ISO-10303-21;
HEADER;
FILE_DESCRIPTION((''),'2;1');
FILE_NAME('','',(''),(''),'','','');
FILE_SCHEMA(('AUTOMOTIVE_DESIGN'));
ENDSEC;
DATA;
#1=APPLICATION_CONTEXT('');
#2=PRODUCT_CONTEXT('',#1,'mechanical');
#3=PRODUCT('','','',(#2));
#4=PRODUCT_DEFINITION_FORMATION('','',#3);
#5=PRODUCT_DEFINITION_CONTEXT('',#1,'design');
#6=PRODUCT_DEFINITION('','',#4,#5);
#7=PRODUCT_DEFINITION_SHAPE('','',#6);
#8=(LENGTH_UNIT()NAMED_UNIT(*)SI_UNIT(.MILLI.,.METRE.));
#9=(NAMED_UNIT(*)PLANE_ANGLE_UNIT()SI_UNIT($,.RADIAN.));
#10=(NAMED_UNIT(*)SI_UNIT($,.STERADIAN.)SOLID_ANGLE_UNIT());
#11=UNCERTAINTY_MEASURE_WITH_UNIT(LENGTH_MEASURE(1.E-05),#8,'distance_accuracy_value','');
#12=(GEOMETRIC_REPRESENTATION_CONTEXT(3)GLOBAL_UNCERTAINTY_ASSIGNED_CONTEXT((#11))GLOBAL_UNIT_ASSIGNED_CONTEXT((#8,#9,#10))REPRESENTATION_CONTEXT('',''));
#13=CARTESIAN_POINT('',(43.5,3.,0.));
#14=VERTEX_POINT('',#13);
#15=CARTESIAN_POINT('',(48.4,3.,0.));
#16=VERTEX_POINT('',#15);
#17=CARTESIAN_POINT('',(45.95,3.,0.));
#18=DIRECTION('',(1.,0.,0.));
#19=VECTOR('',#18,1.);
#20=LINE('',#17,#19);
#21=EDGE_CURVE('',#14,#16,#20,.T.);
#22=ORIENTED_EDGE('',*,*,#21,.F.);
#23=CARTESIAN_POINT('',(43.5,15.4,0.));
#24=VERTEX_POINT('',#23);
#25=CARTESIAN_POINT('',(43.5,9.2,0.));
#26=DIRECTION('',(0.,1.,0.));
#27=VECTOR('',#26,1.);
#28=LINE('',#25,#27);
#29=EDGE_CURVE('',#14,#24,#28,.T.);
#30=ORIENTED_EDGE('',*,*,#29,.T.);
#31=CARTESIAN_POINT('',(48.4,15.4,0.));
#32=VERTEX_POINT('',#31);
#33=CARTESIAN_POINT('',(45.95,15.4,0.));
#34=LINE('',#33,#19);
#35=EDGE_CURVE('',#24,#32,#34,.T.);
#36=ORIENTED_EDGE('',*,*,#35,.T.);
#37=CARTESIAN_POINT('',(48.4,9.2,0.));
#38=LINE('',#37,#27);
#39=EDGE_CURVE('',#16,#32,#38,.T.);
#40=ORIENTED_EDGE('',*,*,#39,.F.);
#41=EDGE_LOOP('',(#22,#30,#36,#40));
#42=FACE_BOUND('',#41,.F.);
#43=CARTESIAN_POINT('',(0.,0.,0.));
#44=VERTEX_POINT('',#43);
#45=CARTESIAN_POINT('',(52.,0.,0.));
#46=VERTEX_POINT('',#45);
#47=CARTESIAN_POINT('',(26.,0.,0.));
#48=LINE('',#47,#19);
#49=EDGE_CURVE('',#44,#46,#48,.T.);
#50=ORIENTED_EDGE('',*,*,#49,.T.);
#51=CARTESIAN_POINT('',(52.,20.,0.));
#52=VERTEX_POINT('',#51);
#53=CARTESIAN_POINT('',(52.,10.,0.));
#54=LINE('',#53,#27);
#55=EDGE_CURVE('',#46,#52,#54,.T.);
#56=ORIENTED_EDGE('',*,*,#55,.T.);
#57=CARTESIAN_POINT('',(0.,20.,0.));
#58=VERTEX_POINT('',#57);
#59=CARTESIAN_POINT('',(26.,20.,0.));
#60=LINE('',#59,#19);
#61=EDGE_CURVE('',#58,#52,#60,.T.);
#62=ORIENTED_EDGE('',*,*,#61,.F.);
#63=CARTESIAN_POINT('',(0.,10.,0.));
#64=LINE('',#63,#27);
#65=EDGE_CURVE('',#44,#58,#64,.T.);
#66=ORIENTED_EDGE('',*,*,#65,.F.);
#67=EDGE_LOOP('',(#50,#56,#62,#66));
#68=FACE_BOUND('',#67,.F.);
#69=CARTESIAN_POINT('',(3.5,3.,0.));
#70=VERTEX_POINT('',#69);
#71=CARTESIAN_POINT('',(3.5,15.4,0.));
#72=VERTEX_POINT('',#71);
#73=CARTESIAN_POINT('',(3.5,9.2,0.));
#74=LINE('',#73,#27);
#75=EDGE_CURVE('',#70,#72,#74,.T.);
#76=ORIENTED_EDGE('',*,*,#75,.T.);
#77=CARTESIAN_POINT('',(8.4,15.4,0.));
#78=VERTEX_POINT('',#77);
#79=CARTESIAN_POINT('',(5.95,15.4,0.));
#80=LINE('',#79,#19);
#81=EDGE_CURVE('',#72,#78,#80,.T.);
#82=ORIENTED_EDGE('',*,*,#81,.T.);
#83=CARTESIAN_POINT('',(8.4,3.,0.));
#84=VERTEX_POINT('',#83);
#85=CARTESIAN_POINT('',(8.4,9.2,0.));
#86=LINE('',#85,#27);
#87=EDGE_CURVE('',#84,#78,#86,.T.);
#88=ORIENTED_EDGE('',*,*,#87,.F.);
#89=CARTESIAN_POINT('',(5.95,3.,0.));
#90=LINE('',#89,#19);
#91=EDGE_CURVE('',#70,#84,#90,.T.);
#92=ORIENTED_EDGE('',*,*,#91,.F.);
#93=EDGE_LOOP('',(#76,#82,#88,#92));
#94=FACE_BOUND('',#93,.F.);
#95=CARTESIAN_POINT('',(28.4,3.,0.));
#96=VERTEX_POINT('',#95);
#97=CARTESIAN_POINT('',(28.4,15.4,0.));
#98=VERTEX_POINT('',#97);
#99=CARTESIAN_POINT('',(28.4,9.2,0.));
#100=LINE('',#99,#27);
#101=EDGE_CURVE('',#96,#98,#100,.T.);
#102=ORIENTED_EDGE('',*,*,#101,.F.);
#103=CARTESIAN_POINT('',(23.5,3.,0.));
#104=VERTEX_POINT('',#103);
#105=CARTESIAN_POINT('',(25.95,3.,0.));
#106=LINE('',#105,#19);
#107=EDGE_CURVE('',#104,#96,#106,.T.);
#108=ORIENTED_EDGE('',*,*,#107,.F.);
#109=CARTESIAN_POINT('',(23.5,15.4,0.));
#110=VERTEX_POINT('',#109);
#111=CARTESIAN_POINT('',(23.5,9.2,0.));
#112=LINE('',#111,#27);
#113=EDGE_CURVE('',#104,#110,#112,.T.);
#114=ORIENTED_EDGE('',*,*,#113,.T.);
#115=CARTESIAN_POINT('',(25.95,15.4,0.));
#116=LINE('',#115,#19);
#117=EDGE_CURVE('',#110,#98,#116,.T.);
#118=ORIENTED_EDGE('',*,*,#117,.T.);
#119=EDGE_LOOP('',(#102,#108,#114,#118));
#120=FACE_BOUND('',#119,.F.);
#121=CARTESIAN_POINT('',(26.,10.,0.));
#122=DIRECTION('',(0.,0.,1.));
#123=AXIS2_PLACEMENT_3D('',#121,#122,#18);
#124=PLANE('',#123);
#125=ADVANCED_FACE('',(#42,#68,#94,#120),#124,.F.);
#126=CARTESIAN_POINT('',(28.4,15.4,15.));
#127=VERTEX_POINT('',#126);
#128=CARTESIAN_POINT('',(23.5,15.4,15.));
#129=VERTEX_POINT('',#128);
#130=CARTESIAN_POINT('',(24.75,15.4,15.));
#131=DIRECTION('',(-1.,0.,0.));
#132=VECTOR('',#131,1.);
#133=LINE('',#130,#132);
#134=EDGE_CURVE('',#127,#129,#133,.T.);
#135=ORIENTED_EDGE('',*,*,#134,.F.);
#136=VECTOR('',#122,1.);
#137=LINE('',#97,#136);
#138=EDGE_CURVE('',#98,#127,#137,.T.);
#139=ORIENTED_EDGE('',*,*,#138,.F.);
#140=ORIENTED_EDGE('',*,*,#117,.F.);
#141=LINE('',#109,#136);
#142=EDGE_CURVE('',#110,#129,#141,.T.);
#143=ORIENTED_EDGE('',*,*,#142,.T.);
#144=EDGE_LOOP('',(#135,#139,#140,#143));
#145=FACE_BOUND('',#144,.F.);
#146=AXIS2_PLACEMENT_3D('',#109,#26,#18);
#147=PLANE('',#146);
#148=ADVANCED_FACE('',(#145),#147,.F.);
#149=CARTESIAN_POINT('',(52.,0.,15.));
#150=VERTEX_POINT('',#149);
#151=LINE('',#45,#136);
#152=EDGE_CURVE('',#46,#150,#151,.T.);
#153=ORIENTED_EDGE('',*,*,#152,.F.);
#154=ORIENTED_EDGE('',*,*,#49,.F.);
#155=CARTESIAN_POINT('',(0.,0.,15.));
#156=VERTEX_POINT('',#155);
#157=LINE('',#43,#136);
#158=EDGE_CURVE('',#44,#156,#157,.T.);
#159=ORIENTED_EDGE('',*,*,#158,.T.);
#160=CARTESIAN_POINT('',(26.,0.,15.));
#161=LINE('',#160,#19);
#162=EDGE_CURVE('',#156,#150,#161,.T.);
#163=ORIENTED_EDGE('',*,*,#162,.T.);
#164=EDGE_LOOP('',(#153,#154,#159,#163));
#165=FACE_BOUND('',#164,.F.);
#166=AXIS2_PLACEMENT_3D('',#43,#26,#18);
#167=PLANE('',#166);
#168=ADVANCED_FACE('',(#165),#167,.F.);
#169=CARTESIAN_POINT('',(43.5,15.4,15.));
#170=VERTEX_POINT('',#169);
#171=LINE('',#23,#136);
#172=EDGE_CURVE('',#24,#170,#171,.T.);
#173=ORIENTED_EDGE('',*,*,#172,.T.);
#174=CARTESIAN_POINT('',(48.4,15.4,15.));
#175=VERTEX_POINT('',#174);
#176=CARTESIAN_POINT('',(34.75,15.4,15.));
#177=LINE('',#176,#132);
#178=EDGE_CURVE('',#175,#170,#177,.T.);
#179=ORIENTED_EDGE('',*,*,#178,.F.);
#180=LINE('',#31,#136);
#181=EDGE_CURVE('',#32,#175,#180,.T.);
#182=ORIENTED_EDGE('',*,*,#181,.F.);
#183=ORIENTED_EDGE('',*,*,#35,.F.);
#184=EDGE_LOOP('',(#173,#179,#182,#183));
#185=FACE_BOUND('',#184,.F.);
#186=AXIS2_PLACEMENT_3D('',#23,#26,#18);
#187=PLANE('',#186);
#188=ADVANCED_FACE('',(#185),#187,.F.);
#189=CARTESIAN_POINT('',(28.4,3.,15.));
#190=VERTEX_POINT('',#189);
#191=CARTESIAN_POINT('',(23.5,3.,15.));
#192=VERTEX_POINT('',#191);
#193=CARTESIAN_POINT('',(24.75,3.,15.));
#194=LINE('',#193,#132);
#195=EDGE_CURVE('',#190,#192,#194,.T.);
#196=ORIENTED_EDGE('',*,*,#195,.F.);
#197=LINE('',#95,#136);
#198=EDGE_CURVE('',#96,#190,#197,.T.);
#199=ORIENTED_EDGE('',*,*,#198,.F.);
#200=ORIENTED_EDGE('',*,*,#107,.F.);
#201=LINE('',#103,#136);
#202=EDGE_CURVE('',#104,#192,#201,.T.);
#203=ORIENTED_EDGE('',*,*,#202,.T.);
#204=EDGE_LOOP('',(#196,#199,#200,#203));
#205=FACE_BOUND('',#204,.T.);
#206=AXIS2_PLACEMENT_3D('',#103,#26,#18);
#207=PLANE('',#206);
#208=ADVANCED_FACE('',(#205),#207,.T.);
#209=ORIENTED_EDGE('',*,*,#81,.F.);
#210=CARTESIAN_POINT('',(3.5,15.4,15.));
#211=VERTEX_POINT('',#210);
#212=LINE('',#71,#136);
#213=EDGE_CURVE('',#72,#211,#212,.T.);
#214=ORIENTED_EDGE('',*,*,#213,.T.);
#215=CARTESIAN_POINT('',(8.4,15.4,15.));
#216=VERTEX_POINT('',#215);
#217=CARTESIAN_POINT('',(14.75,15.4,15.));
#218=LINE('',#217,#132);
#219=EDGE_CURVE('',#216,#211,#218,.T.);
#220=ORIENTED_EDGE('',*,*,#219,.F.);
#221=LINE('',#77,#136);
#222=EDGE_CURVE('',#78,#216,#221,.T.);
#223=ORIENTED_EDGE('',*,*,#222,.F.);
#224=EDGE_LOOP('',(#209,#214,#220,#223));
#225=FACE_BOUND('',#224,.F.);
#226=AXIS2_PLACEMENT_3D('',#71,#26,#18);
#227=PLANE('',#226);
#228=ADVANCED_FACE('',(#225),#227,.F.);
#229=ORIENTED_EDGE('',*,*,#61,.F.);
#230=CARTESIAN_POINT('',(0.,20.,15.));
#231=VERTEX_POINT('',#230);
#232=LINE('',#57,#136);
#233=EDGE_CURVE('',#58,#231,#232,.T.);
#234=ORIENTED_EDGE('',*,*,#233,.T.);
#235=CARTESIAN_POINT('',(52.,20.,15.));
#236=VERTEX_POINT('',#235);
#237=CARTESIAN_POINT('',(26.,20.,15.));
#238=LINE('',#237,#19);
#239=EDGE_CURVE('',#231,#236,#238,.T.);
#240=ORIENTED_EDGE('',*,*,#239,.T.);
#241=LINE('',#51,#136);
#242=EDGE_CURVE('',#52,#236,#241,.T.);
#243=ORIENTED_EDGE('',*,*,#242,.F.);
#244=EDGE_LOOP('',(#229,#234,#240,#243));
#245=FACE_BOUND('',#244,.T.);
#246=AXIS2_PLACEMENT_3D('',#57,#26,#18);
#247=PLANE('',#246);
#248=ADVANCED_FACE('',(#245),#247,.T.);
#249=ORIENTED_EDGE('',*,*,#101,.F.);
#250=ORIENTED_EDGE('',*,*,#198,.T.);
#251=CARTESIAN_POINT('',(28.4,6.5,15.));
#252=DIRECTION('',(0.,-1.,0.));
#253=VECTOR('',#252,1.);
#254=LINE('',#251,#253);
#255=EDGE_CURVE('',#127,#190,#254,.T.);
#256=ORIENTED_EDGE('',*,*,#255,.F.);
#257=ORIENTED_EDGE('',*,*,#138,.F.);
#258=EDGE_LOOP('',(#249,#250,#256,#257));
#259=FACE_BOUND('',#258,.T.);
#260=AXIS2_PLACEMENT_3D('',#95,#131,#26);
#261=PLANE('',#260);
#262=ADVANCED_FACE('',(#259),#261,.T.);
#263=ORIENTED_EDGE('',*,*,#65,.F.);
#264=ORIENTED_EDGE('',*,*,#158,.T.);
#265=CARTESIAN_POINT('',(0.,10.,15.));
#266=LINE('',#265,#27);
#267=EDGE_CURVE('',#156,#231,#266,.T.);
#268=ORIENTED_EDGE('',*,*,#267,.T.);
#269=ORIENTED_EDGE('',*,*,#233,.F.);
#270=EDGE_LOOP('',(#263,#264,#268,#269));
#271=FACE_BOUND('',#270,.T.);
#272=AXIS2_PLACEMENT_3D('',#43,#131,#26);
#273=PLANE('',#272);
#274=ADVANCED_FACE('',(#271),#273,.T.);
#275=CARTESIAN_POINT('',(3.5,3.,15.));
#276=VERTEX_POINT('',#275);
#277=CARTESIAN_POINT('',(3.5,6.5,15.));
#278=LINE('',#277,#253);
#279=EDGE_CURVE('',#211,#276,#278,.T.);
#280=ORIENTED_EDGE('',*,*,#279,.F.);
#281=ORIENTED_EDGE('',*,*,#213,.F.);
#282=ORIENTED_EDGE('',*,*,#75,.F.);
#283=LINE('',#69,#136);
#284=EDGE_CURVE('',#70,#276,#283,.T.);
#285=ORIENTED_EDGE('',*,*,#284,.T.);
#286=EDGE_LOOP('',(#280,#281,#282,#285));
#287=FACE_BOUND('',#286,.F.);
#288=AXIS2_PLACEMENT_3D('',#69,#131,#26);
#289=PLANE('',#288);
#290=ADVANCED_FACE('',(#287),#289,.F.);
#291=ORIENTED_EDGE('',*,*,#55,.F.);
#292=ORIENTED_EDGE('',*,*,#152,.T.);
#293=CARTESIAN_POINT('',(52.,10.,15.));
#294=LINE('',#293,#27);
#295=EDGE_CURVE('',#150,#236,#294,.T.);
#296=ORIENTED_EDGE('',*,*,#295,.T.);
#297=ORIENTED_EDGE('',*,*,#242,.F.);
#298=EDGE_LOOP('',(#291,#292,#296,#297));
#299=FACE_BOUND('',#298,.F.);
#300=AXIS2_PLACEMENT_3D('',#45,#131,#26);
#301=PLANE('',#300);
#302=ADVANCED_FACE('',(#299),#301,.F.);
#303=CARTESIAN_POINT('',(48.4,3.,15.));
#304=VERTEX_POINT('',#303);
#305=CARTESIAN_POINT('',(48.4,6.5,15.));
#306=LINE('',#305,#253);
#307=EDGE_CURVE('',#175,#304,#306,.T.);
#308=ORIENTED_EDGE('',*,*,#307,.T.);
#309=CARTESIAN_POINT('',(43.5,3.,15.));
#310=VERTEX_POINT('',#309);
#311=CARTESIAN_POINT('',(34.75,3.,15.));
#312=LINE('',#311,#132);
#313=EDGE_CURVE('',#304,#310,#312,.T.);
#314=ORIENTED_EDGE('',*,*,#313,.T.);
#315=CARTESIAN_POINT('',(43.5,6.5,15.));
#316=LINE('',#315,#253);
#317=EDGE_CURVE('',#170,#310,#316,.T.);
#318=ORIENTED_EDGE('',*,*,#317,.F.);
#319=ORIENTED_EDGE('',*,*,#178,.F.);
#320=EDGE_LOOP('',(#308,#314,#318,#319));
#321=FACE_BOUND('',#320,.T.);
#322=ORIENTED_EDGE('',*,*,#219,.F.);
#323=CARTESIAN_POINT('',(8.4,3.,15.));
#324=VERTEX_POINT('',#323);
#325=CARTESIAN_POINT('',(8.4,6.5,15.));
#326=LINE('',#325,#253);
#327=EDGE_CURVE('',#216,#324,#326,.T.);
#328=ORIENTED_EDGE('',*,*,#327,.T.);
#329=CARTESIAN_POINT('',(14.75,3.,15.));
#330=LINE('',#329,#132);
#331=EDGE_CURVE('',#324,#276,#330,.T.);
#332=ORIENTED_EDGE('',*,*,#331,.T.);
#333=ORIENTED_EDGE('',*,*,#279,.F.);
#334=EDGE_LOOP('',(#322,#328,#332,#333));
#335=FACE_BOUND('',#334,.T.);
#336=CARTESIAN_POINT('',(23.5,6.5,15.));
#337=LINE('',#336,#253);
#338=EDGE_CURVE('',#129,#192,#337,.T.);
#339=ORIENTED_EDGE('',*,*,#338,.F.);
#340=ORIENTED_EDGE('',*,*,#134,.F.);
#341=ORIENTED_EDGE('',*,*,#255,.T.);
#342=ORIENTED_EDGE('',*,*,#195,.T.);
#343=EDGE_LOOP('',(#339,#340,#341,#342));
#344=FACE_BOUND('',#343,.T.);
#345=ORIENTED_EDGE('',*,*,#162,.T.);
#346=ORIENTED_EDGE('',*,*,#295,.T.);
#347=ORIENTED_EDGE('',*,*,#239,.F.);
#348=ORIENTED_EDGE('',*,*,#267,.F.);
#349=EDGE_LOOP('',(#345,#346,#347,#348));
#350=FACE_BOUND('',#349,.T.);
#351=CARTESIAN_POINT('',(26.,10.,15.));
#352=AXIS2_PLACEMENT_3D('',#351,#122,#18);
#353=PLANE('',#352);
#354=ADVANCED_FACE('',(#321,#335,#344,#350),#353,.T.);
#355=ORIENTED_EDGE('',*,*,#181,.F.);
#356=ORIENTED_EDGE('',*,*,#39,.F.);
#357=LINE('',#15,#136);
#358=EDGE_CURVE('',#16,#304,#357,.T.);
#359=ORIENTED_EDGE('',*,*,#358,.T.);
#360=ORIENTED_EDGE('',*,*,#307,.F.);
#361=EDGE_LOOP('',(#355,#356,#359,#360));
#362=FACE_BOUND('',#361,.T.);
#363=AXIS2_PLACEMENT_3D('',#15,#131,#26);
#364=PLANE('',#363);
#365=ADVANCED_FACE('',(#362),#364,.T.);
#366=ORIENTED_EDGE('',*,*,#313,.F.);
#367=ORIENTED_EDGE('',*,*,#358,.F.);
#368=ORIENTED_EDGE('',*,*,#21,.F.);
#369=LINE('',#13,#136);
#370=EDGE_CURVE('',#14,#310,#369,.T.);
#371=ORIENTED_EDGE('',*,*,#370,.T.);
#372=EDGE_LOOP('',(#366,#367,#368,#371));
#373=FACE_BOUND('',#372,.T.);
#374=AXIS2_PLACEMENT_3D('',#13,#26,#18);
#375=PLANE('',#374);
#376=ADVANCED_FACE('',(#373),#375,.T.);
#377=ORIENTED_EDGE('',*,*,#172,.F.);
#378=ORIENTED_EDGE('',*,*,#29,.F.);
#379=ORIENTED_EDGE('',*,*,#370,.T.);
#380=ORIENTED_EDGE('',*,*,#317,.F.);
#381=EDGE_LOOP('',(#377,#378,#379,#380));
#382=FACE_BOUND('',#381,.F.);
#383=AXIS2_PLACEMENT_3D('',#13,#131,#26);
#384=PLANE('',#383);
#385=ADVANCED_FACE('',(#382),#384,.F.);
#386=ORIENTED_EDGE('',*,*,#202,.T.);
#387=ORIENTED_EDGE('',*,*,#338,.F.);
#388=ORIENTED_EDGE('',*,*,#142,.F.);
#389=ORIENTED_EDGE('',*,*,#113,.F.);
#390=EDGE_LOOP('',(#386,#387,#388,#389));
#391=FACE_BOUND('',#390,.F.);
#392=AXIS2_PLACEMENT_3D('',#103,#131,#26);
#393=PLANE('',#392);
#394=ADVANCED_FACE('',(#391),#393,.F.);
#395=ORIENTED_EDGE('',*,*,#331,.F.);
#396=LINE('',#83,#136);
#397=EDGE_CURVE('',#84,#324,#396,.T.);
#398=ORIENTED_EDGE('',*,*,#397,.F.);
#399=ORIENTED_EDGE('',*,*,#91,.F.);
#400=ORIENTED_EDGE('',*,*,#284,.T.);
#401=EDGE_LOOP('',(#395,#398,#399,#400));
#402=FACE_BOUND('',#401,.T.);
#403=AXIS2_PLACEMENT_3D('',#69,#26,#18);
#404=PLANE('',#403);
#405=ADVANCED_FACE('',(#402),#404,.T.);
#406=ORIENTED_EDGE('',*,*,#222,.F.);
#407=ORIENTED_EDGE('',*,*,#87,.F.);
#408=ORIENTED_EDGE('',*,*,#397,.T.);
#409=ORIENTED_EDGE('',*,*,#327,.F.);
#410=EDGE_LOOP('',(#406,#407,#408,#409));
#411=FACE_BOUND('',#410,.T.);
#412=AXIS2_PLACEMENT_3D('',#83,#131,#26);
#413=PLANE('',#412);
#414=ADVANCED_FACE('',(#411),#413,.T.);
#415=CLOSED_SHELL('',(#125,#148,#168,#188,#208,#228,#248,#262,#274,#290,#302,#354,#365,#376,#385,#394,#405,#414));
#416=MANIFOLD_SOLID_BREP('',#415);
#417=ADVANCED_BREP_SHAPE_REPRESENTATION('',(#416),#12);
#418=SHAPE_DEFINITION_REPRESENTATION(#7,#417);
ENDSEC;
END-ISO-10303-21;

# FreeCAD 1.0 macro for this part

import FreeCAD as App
import Part
import Sketcher
Q = App.Units.Quantity

doc = App.newDocument("Part")
params = doc.addObject("Spreadsheet::Sheet", "Params")
for row, (alias, value) in enumerate([
    ("sketch1_width", "4.9 mm"),
    ("sketch1_height", "12.4 mm"),
    ("pad1_length", "16 mm"),
    ("sketch2_width", "4.9 mm"),
    ("sketch2_height", "12.4 mm"),
    ("pad2_length", "16 mm"),
    ("sketch3_width", "4.9 mm"),
    ("sketch3_height", "12.4 mm"),
    ("pad3_length", "16 mm"),
    ("sketch4_width", "52 mm"),
    ("sketch4_height", "20 mm"),
    ("pad4_length", "15 mm"),
], start=1):
    params.set(f"A{row}", alias)
    params.set(f"B{row}", "=" + value)
    params.setAlias(f"B{row}", alias)

body = doc.addObject("PartDesign::Body", "Body")

# Sketch on XY plane
sketch1 = doc.addObject("Sketcher::SketchObject", "Sketch")
body.addObject(sketch1)
sketch1.AttachmentSupport = (doc.XY_Plane, [""])
sketch1.MapMode = "FlatFace"
sketch1.addGeometry([
    Part.LineSegment(App.Vector(43.5, 15.4, 0), App.Vector(43.5, 3, 0)),
    Part.LineSegment(App.Vector(43.5, 3, 0), App.Vector(48.4, 3, 0)),
    Part.LineSegment(App.Vector(48.4, 3, 0), App.Vector(48.4, 15.4, 0)),
    Part.LineSegment(App.Vector(48.4, 15.4, 0), App.Vector(43.5, 15.4, 0)),
], False)
sketch1.addConstraint([
    Sketcher.Constraint("Coincident", 0, 2, 1, 1),
    Sketcher.Constraint("Coincident", 1, 2, 2, 1),
    Sketcher.Constraint("Coincident", 2, 2, 3, 1),
    Sketcher.Constraint("Coincident", 3, 2, 0, 1),
    Sketcher.Constraint("Vertical", 0),
    Sketcher.Constraint("Horizontal", 1),
    Sketcher.Constraint("Vertical", 2),
    Sketcher.Constraint("Horizontal", 3),
    Sketcher.Constraint("DistanceX", 1, 1, 1, 2, Q("4.9 mm")),
    Sketcher.Constraint("DistanceY", 0, 2, 0, 1, Q("12.4 mm")),
    Sketcher.Constraint("DistanceY", -1, 1, 0, 2, Q("3 mm")),
    Sketcher.Constraint("DistanceX", -1, 1, 0, 2, Q("43.5 mm")),
])
sketch1.setExpression("Constraints[8]", "Params.sketch1_width")
sketch1.setExpression("Constraints[9]", "Params.sketch1_height")
pad1 = doc.addObject("PartDesign::Pad", "Pad")
body.addObject(pad1)
pad1.Profile = sketch1
pad1.setExpression("Length", "Params.pad1_length")
body2 = doc.addObject("PartDesign::Body", "Body001")

# Sketch on XY plane
sketch2 = doc.addObject("Sketcher::SketchObject", "Sketch001")
body2.addObject(sketch2)
sketch2.AttachmentSupport = (doc.getObject("XY_Plane001"), [""])
sketch2.MapMode = "FlatFace"
sketch2.addGeometry([
    Part.LineSegment(App.Vector(23.5, 15.4, 0), App.Vector(23.5, 3, 0)),
    Part.LineSegment(App.Vector(23.5, 3, 0), App.Vector(28.4, 3, 0)),
    Part.LineSegment(App.Vector(28.4, 3, 0), App.Vector(28.4, 15.4, 0)),
    Part.LineSegment(App.Vector(28.4, 15.4, 0), App.Vector(23.5, 15.4, 0)),
], False)
sketch2.addConstraint([
    Sketcher.Constraint("Coincident", 0, 2, 1, 1),
    Sketcher.Constraint("Coincident", 1, 2, 2, 1),
    Sketcher.Constraint("Coincident", 2, 2, 3, 1),
    Sketcher.Constraint("Coincident", 3, 2, 0, 1),
    Sketcher.Constraint("Vertical", 0),
    Sketcher.Constraint("Horizontal", 1),
    Sketcher.Constraint("Vertical", 2),
    Sketcher.Constraint("Horizontal", 3),
    Sketcher.Constraint("DistanceX", 1, 1, 1, 2, Q("4.9 mm")),
    Sketcher.Constraint("DistanceY", 0, 2, 0, 1, Q("12.4 mm")),
    Sketcher.Constraint("DistanceY", -1, 1, 0, 2, Q("3 mm")),
    Sketcher.Constraint("DistanceX", -1, 1, 0, 2, Q("23.5 mm")),
])
sketch2.setExpression("Constraints[8]", "Params.sketch2_width")
sketch2.setExpression("Constraints[9]", "Params.sketch2_height")
pad2 = doc.addObject("PartDesign::Pad", "Pad001")
body2.addObject(pad2)
pad2.Profile = sketch2
pad2.setExpression("Length", "Params.pad2_length")
body3 = doc.addObject("PartDesign::Body", "Body002")

# Sketch on XY plane
sketch3 = doc.addObject("Sketcher::SketchObject", "Sketch002")
body3.addObject(sketch3)
sketch3.AttachmentSupport = (doc.getObject("XY_Plane002"), [""])
sketch3.MapMode = "FlatFace"
sketch3.addGeometry([
    Part.LineSegment(App.Vector(3.5, 15.4, 0), App.Vector(3.5, 3, 0)),
    Part.LineSegment(App.Vector(3.5, 3, 0), App.Vector(8.4, 3, 0)),
    Part.LineSegment(App.Vector(8.4, 3, 0), App.Vector(8.4, 15.4, 0)),
    Part.LineSegment(App.Vector(8.4, 15.4, 0), App.Vector(3.5, 15.4, 0)),
], False)
sketch3.addConstraint([
    Sketcher.Constraint("Coincident", 0, 2, 1, 1),
    Sketcher.Constraint("Coincident", 1, 2, 2, 1),
    Sketcher.Constraint("Coincident", 2, 2, 3, 1),
    Sketcher.Constraint("Coincident", 3, 2, 0, 1),
    Sketcher.Constraint("Vertical", 0),
    Sketcher.Constraint("Horizontal", 1),
    Sketcher.Constraint("Vertical", 2),
    Sketcher.Constraint("Horizontal", 3),
    Sketcher.Constraint("DistanceX", 1, 1, 1, 2, Q("4.9 mm")),
    Sketcher.Constraint("DistanceY", 0, 2, 0, 1, Q("12.4 mm")),
    Sketcher.Constraint("DistanceY", -1, 1, 0, 2, Q("3 mm")),
    Sketcher.Constraint("DistanceX", -1, 1, 0, 2, Q("3.5 mm")),
])
sketch3.setExpression("Constraints[8]", "Params.sketch3_width")
sketch3.setExpression("Constraints[9]", "Params.sketch3_height")
pad3 = doc.addObject("PartDesign::Pad", "Pad002")
body3.addObject(pad3)
pad3.Profile = sketch3
pad3.setExpression("Length", "Params.pad3_length")
body4 = doc.addObject("PartDesign::Body", "Body003")

# Sketch on XY plane
sketch4 = doc.addObject("Sketcher::SketchObject", "Sketch003")
body4.addObject(sketch4)
sketch4.AttachmentSupport = (doc.getObject("XY_Plane003"), [""])
sketch4.MapMode = "FlatFace"
sketch4.addGeometry([
    Part.LineSegment(App.Vector(0, 20, 0), App.Vector(0, 0, 0)),
    Part.LineSegment(App.Vector(0, 0, 0), App.Vector(52, 0, 0)),
    Part.LineSegment(App.Vector(52, 0, 0), App.Vector(52, 20, 0)),
    Part.LineSegment(App.Vector(52, 20, 0), App.Vector(0, 20, 0)),
], False)
sketch4.addConstraint([
    Sketcher.Constraint("Coincident", 0, 2, 1, 1),
    Sketcher.Constraint("Coincident", 1, 2, 2, 1),
    Sketcher.Constraint("Coincident", 2, 2, 3, 1),
    Sketcher.Constraint("Coincident", 3, 2, 0, 1),
    Sketcher.Constraint("Vertical", 0),
    Sketcher.Constraint("Horizontal", 1),
    Sketcher.Constraint("Vertical", 2),
    Sketcher.Constraint("Horizontal", 3),
    Sketcher.Constraint("Coincident", 0, 2, -1, 1),
    Sketcher.Constraint("DistanceX", 1, 1, 1, 2, Q("52 mm")),
    Sketcher.Constraint("DistanceY", 0, 2, 0, 1, Q("20 mm")),
])
sketch4.setExpression("Constraints[9]", "Params.sketch4_width")
sketch4.setExpression("Constraints[10]", "Params.sketch4_height")
pad4 = doc.addObject("PartDesign::Pad", "Pad003")
body4.addObject(pad4)
pad4.Profile = sketch4
pad4.setExpression("Length", "Params.pad4_length")
doc.recompute()

boolean = doc.addObject("PartDesign::Boolean", "Boolean")
body4.addObject(boolean)
boolean.Type = "Cut"
boolean.addObjects([body3])
doc.recompute()

boolean2 = doc.addObject("PartDesign::Boolean", "Boolean001")
body4.addObject(boolean2)
boolean2.Type = "Cut"
boolean2.addObjects([body2])
doc.recompute()

boolean3 = doc.addObject("PartDesign::Boolean", "Boolean002")
body4.addObject(boolean3)
boolean3.Type = "Cut"
boolean3.addObjects([body])

doc.recompute()
